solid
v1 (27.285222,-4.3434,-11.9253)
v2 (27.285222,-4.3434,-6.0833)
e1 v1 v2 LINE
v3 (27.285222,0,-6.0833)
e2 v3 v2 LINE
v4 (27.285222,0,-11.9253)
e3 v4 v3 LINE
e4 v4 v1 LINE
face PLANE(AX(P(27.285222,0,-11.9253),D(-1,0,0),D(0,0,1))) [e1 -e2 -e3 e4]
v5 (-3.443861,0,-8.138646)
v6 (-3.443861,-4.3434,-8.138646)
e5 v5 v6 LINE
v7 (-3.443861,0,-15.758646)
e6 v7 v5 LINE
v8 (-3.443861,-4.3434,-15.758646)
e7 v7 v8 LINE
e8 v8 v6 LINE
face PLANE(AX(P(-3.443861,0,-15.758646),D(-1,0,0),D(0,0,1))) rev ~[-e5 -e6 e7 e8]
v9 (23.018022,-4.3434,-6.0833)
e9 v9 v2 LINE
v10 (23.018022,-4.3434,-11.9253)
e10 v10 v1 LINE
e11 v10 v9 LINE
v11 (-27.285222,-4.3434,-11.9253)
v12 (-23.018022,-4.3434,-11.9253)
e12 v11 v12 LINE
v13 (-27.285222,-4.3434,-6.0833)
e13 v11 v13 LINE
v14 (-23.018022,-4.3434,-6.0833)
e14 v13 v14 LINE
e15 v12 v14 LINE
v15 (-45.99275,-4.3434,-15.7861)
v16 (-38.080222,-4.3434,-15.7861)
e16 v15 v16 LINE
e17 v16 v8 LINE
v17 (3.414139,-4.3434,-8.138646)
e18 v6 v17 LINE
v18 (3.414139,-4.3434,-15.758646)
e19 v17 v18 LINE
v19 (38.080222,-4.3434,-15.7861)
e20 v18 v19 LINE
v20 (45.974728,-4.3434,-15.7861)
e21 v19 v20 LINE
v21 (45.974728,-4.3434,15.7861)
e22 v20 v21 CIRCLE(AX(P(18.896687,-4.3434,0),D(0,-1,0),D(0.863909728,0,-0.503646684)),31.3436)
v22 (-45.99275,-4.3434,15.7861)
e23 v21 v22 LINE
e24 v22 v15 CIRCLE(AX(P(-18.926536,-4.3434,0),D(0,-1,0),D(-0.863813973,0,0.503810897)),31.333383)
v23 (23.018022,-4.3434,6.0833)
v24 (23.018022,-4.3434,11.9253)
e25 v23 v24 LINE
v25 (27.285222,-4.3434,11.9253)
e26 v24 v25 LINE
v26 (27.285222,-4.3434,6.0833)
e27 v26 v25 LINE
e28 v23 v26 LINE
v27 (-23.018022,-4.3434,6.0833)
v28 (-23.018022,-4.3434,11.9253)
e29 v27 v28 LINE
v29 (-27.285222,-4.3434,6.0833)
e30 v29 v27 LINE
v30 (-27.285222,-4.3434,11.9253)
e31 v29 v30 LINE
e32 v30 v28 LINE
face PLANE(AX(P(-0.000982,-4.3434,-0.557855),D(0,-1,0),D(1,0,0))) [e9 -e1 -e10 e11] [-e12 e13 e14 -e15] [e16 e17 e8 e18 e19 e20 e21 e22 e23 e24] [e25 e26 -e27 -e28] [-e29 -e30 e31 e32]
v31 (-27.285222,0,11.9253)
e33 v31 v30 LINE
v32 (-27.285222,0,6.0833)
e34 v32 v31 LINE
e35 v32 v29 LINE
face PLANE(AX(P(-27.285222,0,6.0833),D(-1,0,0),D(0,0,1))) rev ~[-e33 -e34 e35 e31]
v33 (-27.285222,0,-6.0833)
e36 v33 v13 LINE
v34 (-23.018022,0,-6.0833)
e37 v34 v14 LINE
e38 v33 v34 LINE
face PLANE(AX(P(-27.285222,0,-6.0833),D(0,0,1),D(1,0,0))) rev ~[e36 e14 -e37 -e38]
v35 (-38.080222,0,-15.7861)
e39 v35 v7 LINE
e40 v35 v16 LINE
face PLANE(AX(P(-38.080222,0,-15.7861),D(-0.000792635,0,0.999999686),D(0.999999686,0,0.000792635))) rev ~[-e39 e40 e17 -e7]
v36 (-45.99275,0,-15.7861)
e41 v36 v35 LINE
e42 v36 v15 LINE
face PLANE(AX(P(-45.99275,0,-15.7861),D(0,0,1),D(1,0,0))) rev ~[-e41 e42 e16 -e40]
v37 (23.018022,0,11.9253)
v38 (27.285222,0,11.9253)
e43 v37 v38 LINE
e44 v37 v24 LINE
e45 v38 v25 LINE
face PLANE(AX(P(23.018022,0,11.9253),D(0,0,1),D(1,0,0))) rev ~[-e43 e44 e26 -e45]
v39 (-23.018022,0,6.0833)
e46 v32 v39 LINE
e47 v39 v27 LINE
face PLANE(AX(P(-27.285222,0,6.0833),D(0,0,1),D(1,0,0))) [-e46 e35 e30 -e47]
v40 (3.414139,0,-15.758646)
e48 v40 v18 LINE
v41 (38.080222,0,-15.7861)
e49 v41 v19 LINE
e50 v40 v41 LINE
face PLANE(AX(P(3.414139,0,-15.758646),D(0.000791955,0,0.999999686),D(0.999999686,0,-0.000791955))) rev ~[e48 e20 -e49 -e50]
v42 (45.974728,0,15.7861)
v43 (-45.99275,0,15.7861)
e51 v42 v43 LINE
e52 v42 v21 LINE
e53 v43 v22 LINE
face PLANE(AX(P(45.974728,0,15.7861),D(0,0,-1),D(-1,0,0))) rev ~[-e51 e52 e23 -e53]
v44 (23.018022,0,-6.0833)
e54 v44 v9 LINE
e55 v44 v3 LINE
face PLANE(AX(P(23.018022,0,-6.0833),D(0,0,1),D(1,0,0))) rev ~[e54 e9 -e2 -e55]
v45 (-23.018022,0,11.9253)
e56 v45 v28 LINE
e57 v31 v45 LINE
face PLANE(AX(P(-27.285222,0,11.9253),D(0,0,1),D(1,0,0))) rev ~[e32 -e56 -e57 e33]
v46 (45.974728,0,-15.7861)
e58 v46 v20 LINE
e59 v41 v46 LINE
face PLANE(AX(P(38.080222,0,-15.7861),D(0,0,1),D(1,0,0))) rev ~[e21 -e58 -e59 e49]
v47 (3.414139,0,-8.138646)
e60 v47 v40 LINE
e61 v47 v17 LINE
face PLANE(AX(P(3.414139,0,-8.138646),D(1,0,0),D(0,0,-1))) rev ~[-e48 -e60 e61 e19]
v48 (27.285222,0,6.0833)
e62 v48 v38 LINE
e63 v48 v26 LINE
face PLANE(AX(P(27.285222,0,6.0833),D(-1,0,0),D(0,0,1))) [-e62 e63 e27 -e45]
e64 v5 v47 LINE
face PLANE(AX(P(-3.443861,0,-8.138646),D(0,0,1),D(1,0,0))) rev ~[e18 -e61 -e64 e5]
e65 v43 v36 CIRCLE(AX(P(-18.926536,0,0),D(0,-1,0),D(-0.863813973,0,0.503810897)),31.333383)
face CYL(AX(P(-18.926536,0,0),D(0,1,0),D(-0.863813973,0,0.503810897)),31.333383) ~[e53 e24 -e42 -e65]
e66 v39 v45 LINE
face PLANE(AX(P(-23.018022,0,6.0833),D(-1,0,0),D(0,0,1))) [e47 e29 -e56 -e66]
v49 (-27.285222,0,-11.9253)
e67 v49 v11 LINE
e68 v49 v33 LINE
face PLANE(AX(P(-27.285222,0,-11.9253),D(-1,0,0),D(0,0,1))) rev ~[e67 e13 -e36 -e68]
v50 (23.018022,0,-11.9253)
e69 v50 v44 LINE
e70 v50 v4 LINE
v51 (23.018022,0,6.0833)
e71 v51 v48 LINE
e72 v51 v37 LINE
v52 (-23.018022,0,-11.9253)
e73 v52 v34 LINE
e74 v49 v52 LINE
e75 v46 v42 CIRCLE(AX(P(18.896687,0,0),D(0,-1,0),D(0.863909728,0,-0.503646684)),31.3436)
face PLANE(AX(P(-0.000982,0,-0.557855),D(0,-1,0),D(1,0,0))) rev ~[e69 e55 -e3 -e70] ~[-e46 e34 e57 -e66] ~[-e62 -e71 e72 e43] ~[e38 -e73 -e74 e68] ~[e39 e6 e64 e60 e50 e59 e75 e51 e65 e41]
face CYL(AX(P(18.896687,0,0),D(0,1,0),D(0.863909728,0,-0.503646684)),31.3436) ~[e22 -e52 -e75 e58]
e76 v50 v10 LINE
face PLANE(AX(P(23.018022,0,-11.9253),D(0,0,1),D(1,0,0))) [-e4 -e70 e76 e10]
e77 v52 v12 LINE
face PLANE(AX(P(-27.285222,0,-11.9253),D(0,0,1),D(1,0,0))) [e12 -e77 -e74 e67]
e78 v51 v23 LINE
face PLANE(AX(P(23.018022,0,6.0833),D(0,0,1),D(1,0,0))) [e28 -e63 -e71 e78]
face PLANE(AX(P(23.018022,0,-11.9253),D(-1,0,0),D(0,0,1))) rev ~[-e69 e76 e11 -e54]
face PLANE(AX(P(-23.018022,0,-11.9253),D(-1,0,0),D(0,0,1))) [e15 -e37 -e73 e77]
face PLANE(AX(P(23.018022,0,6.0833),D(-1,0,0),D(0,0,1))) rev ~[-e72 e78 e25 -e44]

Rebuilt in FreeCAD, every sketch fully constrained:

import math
import FreeCAD as App
import Part
import Sketcher
Q = App.Units.Quantity


def add_polygon(sketch, points):
    """Adds a closed chain of lines whose ends are joined by coincident constraints."""
    first, n = sketch.GeometryCount, len(points)
    for a, b in zip(points, points[1:] + points[:1]):
        sketch.addGeometry(Part.LineSegment(App.Vector(*a, 0), App.Vector(*b, 0)), False)
    for i in range(n):
        sketch.addConstraint(Sketcher.Constraint("Coincident", first + i, 2, first + (i + 1) % n, 1))

doc = App.newDocument("Part")
body = doc.addObject("PartDesign::Body", "Body")

sketch1 = body.newObject("Sketcher::SketchObject", "Sketch")
sketch1.AttachmentSupport = (doc.getObject("XZ_Plane"), [""])
sketch1.MapMode = "FlatFace"
sketch1.addGeometry(Part.LineSegment(App.Vector(3.4, -15.8, 0), App.Vector(38.1, -15.8, 0)), False)
sketch1.addGeometry(Part.LineSegment(App.Vector(38.1, -15.8, 0), App.Vector(46, -15.8, 0)), False)
sketch1.addGeometry(Part.ArcOfCircle(Part.Circle(App.Vector(18.9, 0, 0), App.Vector(0, 0, 1), 31.3), math.radians(-30), math.radians(30)), False)
sketch1.addGeometry(Part.LineSegment(App.Vector(46, 15.8, 0), App.Vector(-46, 15.8, 0)), False)
sketch1.addGeometry(Part.ArcOfCircle(Part.Circle(App.Vector(-18.9, 0, 0), App.Vector(0, 0, 1), 31.3), math.radians(150), math.radians(210)), False)
sketch1.addGeometry(Part.LineSegment(App.Vector(-46, -15.8, 0), App.Vector(-38.1, -15.8, 0)), False)
sketch1.addGeometry(Part.LineSegment(App.Vector(-38.1, -15.8, 0), App.Vector(-3.4, -15.8, 0)), False)
sketch1.addGeometry(Part.LineSegment(App.Vector(-3.4, -15.8, 0), App.Vector(-3.4, -8.1, 0)), False)
sketch1.addGeometry(Part.LineSegment(App.Vector(-3.4, -8.1, 0), App.Vector(3.4, -8.1, 0)), False)
sketch1.addGeometry(Part.LineSegment(App.Vector(3.4, -8.1, 0), App.Vector(3.4, -15.8, 0)), False)
add_polygon(sketch1, [(-23, -11.9), (-27.3, -11.9), (-27.3, -6.1), (-23, -6.1)])
add_polygon(sketch1, [(27.3, -11.9), (23, -11.9), (23, -6.1), (27.3, -6.1)])
add_polygon(sketch1, [(-23, 6.1), (-27.3, 6.1), (-27.3, 11.9), (-23, 11.9)])
add_polygon(sketch1, [(27.3, 6.1), (23, 6.1), (23, 11.9), (27.3, 11.9)])
sketch1.addConstraint(Sketcher.Constraint("Coincident", 0, 2, 1, 1))
sketch1.addConstraint(Sketcher.Constraint("Coincident", 1, 2, 2, 1))
sketch1.addConstraint(Sketcher.Constraint("Coincident", 2, 2, 3, 1))
sketch1.addConstraint(Sketcher.Constraint("Coincident", 3, 2, 4, 1))
sketch1.addConstraint(Sketcher.Constraint("Coincident", 4, 2, 5, 1))
sketch1.addConstraint(Sketcher.Constraint("Coincident", 5, 2, 6, 1))
sketch1.addConstraint(Sketcher.Constraint("Coincident", 6, 2, 7, 1))
sketch1.addConstraint(Sketcher.Constraint("Coincident", 7, 2, 8, 1))
sketch1.addConstraint(Sketcher.Constraint("Coincident", 8, 2, 9, 1))
sketch1.addConstraint(Sketcher.Constraint("Coincident", 9, 2, 0, 1))
sketch1.addConstraint(Sketcher.Constraint("Horizontal", 1))
sketch1.addConstraint(Sketcher.Constraint("Horizontal", 3))
sketch1.addConstraint(Sketcher.Constraint("Horizontal", 5))
sketch1.addConstraint(Sketcher.Constraint("Vertical", 7))
sketch1.addConstraint(Sketcher.Constraint("Horizontal", 8))
sketch1.addConstraint(Sketcher.Constraint("Vertical", 9))
sketch1.addConstraint(Sketcher.Constraint("Horizontal", 10))
sketch1.addConstraint(Sketcher.Constraint("Vertical", 11))
sketch1.addConstraint(Sketcher.Constraint("Horizontal", 12))
sketch1.addConstraint(Sketcher.Constraint("Vertical", 13))
sketch1.addConstraint(Sketcher.Constraint("Horizontal", 14))
sketch1.addConstraint(Sketcher.Constraint("Vertical", 15))
sketch1.addConstraint(Sketcher.Constraint("Horizontal", 16))
sketch1.addConstraint(Sketcher.Constraint("Vertical", 17))
sketch1.addConstraint(Sketcher.Constraint("Horizontal", 18))
sketch1.addConstraint(Sketcher.Constraint("Vertical", 19))
sketch1.addConstraint(Sketcher.Constraint("Horizontal", 20))
sketch1.addConstraint(Sketcher.Constraint("Vertical", 21))
sketch1.addConstraint(Sketcher.Constraint("Horizontal", 22))
sketch1.addConstraint(Sketcher.Constraint("Vertical", 23))
sketch1.addConstraint(Sketcher.Constraint("Horizontal", 24))
sketch1.addConstraint(Sketcher.Constraint("Vertical", 25))
sketch1.addConstraint(Sketcher.Constraint("Symmetric", 16, 2, 18, 2, -1, 1))
sketch1.addConstraint(Sketcher.Constraint("Symmetric", 14, 2, 20, 2, -1, 1))
sketch1.addConstraint(Sketcher.Constraint("Symmetric", 12, 2, 22, 2, -1, 1))
sketch1.addConstraint(Sketcher.Constraint("Symmetric", 10, 2, 24, 2, -1, 1))
sketch1.addConstraint(Sketcher.Constraint("Symmetric", 0, 2, 5, 2, -2))
sketch1.addConstraint(Sketcher.Constraint("Symmetric", 13, 2, 14, 2, -2))
sketch1.addConstraint(Sketcher.Constraint("Symmetric", 11, 2, 16, 2, -2))
sketch1.addConstraint(Sketcher.Constraint("Symmetric", 1, 2, 2, 2, -1))
sketch1.addConstraint(Sketcher.Constraint("PointOnObject", 4, 3, -1))
sketch1.addConstraint(Sketcher.Constraint("Horizontal", 6, 2, 9, 2))
sketch1.addConstraint(Sketcher.Constraint("DistanceY", 7, 1, 7, 2, Q("0.3 in")))
sketch1.addConstraint(Sketcher.Constraint("Radius", 2, Q("1.234 in")))
sketch1.addConstraint(Sketcher.Constraint("DistanceX", 8, 1, 8, 2, Q("0.27 in")))
sketch1.addConstraint(Sketcher.Constraint("DistanceY", 11, 1, 11, 2, Q("0.23 in")))
sketch1.addConstraint(Sketcher.Constraint("DistanceX", 10, 2, 10, 1, Q("0.168 in")))
sketch1.addConstraint(Sketcher.Constraint("DistanceY", 1, 2, 2, 2, Q("1.243 in")))
sketch1.addConstraint(Sketcher.Constraint("DistanceX", 5, 2, 10, 2, Q("0.425 in")))
sketch1.addConstraint(Sketcher.Constraint("DistanceY", 5, 2, 10, 2, Q("0.152 in")))
sketch1.addConstraint(Sketcher.Constraint("Radius", 4, Q("31.333383 mm")))
sketch1.addConstraint(Sketcher.Constraint("DistanceX", 3, 2, 3, 1, Q("91.967478 mm")))
sketch1.addConstraint(Sketcher.Constraint("DistanceX", 5, 1, 5, 2, Q("7.912528 mm")))
sketch1.addConstraint(Sketcher.Constraint("Distance", 6, Q("34.636372 mm")))
sketch1.addConstraint(Sketcher.Constraint("DistanceX", 1, 1, 1, 2, Q("7.894506 mm")))
sketch1.addConstraint(Sketcher.Constraint("DistanceY", 6, 2, -1, 1, Q("15.758646 mm")))
pad1 = body.newObject("PartDesign::Pad", "Pad")
pad1.Profile = sketch1
pad1.Length = Q("0.171 in")

doc.recompute()
